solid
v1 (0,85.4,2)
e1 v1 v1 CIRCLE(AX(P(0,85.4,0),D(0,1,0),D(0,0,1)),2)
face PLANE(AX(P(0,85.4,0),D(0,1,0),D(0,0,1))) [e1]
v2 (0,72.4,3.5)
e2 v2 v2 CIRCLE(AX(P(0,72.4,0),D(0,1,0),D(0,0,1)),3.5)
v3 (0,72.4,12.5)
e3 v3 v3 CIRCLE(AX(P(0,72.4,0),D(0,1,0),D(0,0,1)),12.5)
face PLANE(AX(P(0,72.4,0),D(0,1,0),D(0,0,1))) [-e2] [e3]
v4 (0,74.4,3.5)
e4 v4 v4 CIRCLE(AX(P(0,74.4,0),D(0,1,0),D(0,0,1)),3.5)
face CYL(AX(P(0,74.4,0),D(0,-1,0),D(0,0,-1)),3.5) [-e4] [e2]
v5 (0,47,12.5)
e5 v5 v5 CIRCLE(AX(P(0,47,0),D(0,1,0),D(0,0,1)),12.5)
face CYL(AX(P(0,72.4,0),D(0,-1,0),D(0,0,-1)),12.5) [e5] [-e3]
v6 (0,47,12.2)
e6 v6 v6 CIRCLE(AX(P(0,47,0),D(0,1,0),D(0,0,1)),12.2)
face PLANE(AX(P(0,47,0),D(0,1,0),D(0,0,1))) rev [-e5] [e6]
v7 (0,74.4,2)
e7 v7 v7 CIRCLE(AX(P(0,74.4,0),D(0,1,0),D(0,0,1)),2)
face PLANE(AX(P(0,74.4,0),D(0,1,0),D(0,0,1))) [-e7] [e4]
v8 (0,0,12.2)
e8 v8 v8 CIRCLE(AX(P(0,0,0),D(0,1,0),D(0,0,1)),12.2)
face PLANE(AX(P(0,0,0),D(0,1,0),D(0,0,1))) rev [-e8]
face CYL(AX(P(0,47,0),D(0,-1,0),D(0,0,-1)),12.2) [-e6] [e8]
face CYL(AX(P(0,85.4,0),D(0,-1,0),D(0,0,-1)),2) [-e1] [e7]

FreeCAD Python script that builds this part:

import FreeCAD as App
import Part
import Sketcher
Q = App.Units.Quantity

doc = App.newDocument("Part")
body = doc.addObject("PartDesign::Body", "Body")

# Sketch on XZ plane
sketch1 = body.newObject("Sketcher::SketchObject", "Sketch")
sketch1.AttachmentSupport = (doc.getObject("XZ_Plane"), [""])
sketch1.MapMode = "FlatFace"
sketch1.addGeometry(Part.Circle(App.Vector(0, 0, 0), App.Vector(0, 0, 1), 12), False)
sketch1.addConstraint(Sketcher.Constraint("Coincident", 0, 3, -1, 1))
sketch1.addConstraint(Sketcher.Constraint("Diameter", 0, Q("24.4 mm")))
pad1 = body.newObject("PartDesign::Pad", "Pad")
pad1.Profile = sketch1
pad1.Length = 47
pad1.Reversed = True

# Sketch on XZ plane
sketch2 = body.newObject("Sketcher::SketchObject", "Sketch001")
sketch2.AttachmentSupport = (doc.getObject("XZ_Plane"), [""])
sketch2.MapMode = "FlatFace"
sketch2.AttachmentOffset = App.Placement(App.Vector(0, 0, -47), App.Rotation())
sketch2.addGeometry(Part.Circle(App.Vector(0, 0, 0), App.Vector(0, 0, 1), 12), False)
sketch2.addConstraint(Sketcher.Constraint("Coincident", 0, 3, -1, 1))
sketch2.addConstraint(Sketcher.Constraint("Diameter", 0, Q("25 mm")))
pad2 = body.newObject("PartDesign::Pad", "Pad001")
pad2.Profile = sketch2
pad2.Length = 25.4
pad2.Reversed = True

# Sketch on XZ plane
sketch3 = body.newObject("Sketcher::SketchObject", "Sketch002")
sketch3.AttachmentSupport = (doc.getObject("XZ_Plane"), [""])
sketch3.MapMode = "FlatFace"
sketch3.AttachmentOffset = App.Placement(App.Vector(0, 0, -72.4), App.Rotation())
sketch3.addGeometry(Part.Circle(App.Vector(0, 0, 0), App.Vector(0, 0, 1), 3.5), False)
sketch3.addConstraint(Sketcher.Constraint("Coincident", 0, 3, -1, 1))
sketch3.addConstraint(Sketcher.Constraint("Diameter", 0, Q("7 mm")))
pad3 = body.newObject("PartDesign::Pad", "Pad002")
pad3.Profile = sketch3
pad3.Length = 2
pad3.Reversed = True

# Sketch on XZ plane
sketch4 = body.newObject("Sketcher::SketchObject", "Sketch003")
sketch4.AttachmentSupport = (doc.getObject("XZ_Plane"), [""])
sketch4.MapMode = "FlatFace"
sketch4.AttachmentOffset = App.Placement(App.Vector(0, 0, -74.4), App.Rotation())
sketch4.addGeometry(Part.Circle(App.Vector(0, 0, 0), App.Vector(0, 0, 1), 2), False)
sketch4.addConstraint(Sketcher.Constraint("Coincident", 0, 3, -1, 1))
sketch4.addConstraint(Sketcher.Constraint("Diameter", 0, Q("4 mm")))
pad4 = body.newObject("PartDesign::Pad", "Pad003")
pad4.Profile = sketch4
pad4.Length = 11
pad4.Reversed = True

doc.recompute()
